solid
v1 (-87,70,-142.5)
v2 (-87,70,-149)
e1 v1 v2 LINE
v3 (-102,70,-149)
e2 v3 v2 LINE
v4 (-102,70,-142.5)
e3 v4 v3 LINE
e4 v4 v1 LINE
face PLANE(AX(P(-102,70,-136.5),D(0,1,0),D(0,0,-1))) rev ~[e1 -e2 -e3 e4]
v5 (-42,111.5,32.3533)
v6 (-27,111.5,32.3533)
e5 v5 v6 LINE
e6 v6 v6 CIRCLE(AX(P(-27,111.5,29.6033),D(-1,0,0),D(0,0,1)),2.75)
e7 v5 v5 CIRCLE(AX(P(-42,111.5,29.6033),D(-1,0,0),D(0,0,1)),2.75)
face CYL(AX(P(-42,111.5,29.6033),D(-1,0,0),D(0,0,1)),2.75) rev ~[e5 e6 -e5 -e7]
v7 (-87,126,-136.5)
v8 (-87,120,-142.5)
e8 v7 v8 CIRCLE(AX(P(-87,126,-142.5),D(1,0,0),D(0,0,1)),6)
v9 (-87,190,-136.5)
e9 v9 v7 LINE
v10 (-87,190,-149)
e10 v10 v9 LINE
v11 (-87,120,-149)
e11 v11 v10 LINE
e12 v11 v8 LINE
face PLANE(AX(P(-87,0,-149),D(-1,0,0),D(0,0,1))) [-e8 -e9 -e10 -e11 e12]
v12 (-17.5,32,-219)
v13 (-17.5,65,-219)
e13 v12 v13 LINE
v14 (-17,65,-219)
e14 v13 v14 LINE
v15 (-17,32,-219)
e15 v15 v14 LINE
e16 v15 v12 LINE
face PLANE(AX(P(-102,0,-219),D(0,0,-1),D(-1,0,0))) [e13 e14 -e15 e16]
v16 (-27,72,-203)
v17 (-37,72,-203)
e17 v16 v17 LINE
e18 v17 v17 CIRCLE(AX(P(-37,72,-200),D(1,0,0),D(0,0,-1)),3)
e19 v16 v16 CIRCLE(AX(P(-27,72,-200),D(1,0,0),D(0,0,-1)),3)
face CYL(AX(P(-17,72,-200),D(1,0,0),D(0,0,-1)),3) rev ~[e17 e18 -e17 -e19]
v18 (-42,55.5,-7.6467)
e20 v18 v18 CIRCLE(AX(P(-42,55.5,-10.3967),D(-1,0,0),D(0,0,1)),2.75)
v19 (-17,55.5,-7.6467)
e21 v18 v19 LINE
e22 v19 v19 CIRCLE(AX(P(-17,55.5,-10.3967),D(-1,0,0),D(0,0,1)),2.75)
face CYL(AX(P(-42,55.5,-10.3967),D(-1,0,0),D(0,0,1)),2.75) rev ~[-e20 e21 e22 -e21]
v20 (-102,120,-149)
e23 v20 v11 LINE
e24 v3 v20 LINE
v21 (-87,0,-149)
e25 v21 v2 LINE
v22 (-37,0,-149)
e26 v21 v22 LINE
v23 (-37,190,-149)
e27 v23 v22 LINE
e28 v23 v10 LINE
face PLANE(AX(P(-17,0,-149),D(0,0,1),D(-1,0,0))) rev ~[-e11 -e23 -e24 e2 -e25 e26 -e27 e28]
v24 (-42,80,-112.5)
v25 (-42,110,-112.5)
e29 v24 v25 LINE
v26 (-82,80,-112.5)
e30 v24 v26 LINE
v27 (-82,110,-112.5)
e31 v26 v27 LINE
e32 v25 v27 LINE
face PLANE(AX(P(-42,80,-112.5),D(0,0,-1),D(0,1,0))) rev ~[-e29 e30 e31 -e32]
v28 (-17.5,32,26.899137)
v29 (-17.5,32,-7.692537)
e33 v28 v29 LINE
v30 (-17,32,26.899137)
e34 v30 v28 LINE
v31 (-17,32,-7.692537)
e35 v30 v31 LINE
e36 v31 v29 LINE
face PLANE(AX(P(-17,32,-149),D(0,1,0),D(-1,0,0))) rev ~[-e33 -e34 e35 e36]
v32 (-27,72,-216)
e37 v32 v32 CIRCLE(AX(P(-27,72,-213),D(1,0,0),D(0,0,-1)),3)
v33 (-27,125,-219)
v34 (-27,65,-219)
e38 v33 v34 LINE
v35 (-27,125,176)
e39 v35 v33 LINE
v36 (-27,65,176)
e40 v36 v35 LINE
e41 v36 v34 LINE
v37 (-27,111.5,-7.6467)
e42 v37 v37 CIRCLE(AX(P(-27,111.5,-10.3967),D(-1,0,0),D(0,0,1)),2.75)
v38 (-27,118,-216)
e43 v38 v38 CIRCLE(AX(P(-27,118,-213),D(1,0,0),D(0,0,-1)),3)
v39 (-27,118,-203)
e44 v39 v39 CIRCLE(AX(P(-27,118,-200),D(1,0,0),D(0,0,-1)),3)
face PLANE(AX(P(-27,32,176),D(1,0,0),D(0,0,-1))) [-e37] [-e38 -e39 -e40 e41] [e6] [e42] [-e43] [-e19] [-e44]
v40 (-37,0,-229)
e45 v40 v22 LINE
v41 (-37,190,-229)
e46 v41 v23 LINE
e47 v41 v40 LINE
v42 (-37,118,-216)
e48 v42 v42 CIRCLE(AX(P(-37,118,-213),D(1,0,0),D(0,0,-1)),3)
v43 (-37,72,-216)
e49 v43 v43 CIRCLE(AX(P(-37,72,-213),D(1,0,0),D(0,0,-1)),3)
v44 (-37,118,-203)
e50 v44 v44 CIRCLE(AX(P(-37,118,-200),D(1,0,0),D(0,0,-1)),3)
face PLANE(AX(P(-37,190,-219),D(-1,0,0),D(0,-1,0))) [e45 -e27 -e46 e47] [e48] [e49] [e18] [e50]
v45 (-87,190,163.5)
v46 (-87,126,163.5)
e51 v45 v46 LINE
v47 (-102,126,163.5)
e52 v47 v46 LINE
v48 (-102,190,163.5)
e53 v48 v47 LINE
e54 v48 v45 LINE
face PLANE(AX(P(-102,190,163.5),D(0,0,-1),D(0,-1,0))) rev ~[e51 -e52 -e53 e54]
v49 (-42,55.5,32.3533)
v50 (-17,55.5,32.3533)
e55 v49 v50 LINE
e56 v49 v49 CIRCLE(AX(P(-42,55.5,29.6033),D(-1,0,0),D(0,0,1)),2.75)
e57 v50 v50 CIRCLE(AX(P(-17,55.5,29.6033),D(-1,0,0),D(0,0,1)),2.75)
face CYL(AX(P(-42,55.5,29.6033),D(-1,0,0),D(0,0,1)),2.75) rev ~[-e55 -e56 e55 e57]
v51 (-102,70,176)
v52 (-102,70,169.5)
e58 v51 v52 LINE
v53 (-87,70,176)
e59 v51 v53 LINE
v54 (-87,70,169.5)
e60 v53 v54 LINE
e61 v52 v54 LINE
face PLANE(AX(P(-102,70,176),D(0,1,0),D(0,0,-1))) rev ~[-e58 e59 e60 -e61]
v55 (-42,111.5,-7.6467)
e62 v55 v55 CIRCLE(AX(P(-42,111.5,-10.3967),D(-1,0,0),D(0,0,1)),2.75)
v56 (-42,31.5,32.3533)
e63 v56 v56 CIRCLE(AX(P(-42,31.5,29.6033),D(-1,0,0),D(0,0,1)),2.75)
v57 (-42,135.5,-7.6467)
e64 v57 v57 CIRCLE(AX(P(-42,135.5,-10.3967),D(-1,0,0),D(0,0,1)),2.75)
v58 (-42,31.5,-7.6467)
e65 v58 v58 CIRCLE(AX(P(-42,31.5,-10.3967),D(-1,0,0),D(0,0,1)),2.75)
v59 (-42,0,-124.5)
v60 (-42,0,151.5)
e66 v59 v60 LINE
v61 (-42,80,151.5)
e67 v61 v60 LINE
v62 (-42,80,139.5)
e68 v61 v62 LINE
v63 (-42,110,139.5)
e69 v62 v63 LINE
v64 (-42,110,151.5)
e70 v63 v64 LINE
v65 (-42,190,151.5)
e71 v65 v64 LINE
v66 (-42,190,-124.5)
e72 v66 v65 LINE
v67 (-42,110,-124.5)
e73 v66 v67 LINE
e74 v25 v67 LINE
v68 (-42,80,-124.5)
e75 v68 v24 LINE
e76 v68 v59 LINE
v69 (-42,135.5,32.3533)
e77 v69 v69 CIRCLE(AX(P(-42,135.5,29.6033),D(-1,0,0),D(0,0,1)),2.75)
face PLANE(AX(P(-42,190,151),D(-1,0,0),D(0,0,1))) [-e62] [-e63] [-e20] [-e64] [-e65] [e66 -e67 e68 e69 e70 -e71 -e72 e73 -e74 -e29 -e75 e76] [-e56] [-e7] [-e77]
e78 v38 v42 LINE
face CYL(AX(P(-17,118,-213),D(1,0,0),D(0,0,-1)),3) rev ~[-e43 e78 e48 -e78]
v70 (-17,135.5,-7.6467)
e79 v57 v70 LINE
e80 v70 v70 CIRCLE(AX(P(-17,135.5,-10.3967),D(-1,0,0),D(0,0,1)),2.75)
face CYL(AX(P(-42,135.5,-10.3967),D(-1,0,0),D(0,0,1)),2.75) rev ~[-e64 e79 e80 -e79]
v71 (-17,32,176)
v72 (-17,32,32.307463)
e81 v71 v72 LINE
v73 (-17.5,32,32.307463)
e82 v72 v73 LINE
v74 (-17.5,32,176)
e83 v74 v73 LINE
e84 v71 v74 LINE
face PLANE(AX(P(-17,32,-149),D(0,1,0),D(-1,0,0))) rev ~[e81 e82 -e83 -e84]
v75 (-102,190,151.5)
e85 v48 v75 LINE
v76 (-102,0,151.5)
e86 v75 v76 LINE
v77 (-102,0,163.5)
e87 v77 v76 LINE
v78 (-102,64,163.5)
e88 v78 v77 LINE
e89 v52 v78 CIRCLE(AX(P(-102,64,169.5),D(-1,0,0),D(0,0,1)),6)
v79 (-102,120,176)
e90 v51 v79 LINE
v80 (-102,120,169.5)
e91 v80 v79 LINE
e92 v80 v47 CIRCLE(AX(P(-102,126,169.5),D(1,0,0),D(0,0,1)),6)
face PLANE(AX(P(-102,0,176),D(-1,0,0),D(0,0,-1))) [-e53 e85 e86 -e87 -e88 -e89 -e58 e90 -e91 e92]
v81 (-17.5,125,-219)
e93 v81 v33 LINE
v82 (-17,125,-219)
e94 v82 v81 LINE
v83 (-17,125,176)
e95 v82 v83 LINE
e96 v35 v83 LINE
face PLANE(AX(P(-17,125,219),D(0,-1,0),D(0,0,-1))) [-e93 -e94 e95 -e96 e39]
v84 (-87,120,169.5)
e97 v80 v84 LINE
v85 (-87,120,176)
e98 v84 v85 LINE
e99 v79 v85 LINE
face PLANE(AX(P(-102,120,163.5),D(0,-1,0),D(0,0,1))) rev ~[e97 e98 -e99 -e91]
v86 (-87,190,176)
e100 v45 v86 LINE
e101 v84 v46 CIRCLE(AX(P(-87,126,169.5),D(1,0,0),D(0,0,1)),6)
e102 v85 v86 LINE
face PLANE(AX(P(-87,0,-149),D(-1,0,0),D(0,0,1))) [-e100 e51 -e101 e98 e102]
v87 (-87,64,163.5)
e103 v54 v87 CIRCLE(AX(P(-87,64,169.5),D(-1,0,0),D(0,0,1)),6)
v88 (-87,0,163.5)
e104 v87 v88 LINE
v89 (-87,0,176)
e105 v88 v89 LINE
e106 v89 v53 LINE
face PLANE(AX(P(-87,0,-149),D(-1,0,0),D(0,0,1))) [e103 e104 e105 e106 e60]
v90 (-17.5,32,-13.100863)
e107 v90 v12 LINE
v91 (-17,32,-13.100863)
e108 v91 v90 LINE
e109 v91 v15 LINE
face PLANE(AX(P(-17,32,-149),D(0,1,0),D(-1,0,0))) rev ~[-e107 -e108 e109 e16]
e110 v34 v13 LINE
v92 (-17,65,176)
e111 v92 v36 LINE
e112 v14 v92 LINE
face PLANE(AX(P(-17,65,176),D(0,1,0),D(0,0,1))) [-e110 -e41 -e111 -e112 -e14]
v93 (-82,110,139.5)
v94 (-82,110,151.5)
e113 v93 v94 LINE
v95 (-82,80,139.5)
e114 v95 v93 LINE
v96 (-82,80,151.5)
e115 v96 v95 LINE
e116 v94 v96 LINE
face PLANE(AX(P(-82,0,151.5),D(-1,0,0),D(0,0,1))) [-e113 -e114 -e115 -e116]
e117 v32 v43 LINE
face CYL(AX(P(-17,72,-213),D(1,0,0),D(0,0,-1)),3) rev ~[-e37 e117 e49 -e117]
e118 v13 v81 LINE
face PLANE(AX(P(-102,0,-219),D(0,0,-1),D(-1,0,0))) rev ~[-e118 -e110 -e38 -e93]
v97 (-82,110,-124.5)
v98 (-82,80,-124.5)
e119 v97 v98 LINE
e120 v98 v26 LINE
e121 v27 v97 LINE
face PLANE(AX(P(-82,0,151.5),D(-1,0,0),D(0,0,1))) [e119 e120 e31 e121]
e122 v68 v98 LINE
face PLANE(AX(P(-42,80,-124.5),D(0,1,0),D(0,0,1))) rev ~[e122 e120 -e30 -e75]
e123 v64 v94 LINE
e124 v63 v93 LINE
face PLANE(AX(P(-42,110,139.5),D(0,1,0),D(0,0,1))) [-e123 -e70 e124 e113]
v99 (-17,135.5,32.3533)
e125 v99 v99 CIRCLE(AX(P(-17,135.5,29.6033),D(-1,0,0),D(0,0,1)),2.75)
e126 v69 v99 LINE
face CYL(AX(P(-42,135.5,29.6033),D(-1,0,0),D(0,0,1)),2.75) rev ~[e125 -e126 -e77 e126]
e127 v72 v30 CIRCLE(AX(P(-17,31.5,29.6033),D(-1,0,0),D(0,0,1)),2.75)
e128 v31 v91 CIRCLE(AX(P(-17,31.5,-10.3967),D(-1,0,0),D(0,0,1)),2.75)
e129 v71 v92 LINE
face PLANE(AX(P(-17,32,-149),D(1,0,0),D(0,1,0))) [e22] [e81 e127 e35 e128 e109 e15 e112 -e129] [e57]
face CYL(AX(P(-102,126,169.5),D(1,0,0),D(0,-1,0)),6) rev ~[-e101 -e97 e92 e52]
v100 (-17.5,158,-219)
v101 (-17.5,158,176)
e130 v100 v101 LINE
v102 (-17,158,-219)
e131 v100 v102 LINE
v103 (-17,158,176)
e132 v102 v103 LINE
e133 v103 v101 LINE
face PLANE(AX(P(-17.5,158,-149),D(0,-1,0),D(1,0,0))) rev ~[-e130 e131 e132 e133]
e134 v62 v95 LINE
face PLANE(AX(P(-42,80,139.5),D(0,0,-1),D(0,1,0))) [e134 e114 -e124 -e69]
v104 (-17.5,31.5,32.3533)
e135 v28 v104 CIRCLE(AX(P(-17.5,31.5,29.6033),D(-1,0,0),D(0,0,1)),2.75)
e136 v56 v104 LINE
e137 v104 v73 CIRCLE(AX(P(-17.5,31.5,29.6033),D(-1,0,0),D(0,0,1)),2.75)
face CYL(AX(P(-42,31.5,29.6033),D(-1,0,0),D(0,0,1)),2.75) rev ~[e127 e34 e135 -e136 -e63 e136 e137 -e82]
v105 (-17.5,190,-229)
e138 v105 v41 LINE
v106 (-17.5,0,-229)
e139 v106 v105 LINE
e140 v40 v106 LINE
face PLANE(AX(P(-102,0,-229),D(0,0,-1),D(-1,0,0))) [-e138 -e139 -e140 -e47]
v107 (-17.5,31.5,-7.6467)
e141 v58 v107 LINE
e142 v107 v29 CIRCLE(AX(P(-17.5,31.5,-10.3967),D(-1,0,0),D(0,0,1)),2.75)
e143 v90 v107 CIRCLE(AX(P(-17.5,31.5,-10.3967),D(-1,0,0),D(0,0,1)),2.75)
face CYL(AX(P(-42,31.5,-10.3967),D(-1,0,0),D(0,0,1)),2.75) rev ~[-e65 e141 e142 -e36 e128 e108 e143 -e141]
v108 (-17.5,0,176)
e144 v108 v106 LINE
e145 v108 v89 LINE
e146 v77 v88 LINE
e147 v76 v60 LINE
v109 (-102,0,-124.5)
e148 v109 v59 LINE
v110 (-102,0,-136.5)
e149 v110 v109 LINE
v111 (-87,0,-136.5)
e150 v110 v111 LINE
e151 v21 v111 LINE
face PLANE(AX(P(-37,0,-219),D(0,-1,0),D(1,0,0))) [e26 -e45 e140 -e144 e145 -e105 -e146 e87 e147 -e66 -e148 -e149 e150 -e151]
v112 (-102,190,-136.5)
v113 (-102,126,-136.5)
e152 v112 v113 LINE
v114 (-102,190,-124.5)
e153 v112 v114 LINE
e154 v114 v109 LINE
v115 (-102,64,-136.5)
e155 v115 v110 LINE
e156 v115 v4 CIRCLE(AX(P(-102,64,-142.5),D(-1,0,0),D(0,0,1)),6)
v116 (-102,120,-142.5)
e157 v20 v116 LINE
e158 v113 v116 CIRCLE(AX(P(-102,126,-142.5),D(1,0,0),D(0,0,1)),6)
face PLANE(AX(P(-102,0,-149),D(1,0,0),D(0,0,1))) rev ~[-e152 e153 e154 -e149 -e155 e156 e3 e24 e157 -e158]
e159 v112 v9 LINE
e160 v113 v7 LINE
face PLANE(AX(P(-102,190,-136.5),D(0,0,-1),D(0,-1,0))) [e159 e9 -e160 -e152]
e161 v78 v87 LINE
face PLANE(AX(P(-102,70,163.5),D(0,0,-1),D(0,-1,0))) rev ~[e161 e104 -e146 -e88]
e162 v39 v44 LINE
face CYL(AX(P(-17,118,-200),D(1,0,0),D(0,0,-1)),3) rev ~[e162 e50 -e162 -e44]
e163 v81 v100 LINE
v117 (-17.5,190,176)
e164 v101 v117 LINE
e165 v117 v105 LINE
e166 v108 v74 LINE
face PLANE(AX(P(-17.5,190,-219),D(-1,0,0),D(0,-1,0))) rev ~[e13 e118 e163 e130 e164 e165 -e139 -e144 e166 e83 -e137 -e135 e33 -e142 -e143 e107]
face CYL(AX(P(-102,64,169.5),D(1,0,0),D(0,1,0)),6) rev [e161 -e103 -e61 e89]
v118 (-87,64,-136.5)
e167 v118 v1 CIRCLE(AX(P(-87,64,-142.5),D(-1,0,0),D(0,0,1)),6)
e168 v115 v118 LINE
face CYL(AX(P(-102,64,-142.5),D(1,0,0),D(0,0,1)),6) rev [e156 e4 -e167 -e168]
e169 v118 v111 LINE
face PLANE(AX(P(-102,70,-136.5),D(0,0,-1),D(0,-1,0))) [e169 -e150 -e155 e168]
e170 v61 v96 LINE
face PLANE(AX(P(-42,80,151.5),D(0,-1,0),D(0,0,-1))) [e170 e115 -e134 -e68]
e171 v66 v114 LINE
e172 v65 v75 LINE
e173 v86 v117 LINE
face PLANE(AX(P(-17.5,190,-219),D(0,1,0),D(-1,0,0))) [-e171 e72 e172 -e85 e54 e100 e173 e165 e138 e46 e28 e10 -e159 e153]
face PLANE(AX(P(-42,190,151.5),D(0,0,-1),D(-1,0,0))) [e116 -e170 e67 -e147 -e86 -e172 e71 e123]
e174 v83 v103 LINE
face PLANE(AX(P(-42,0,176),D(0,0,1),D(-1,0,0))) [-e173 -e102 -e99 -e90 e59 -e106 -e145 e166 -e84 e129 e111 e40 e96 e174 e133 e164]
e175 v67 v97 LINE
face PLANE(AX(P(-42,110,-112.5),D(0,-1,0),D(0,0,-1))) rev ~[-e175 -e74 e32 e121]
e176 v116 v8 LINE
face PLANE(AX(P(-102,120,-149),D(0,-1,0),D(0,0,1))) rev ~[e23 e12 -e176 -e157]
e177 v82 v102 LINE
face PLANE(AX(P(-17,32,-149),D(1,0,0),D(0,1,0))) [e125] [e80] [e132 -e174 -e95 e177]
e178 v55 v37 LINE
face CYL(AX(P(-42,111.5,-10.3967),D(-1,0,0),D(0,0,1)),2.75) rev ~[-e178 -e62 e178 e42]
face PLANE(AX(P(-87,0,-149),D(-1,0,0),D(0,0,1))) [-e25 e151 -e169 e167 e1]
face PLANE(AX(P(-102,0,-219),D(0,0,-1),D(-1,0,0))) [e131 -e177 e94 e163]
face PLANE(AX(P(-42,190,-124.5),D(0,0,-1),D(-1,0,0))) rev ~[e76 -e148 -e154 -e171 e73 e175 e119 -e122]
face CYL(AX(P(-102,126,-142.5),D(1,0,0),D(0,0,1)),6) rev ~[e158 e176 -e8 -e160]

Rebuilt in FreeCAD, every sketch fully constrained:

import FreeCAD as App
import Part
import Sketcher

V = App.Vector


def edges_at(feature, points):
    """Names of the edges that pass closest to the given points."""
    edges = feature.Shape.Edges
    near = lambda p: min(range(len(edges)), key=lambda i: edges[i].distToShape(Part.Vertex(*p))[0])
    return sorted({f"Edge{near(p) + 1}" for p in points})

doc = App.newDocument("Part")
body = doc.addObject("PartDesign::Body", "Body")

# Sketch on XZ plane
sketch1 = doc.addObject("Sketcher::SketchObject", "Sketch")
body.addObject(sketch1)
sketch1.AttachmentSupport = (doc.XZ_Plane, [""])
sketch1.MapMode = "FlatFace"
sketch1.addGeometry(Part.LineSegment(V(-42, 151, 0), V(-102, 151, 0)), False)
sketch1.addGeometry(Part.LineSegment(V(-102, 151, 0), V(-102, 176, 0)), False)
sketch1.addGeometry(Part.LineSegment(V(-102, 176, 0), V(-17, 176, 0)), False)
sketch1.addGeometry(Part.LineSegment(V(-17, 176, 0), V(-17, -149, 0)), False)
sketch1.addGeometry(Part.LineSegment(V(-17, -149, 0), V(-102, -149, 0)), False)
sketch1.addGeometry(Part.LineSegment(V(-102, -149, 0), V(-102, -124, 0)), False)
sketch1.addGeometry(Part.LineSegment(V(-102, -124, 0), V(-42, -124, 0)), False)
sketch1.addGeometry(Part.LineSegment(V(-42, -124, 0), V(-42, 151, 0)), False)
sketch1.addConstraint(Sketcher.Constraint("Coincident", 0, 2, 1, 1))
sketch1.addConstraint(Sketcher.Constraint("Coincident", 1, 2, 2, 1))
sketch1.addConstraint(Sketcher.Constraint("Coincident", 2, 2, 3, 1))
sketch1.addConstraint(Sketcher.Constraint("Coincident", 3, 2, 4, 1))
sketch1.addConstraint(Sketcher.Constraint("Coincident", 4, 2, 5, 1))
sketch1.addConstraint(Sketcher.Constraint("Coincident", 5, 2, 6, 1))
sketch1.addConstraint(Sketcher.Constraint("Coincident", 6, 2, 7, 1))
sketch1.addConstraint(Sketcher.Constraint("Coincident", 7, 2, 0, 1))
sketch1.addConstraint(Sketcher.Constraint("Horizontal", 0))
sketch1.addConstraint(Sketcher.Constraint("Vertical", 1))
sketch1.addConstraint(Sketcher.Constraint("Horizontal", 2))
sketch1.addConstraint(Sketcher.Constraint("Vertical", 3))
sketch1.addConstraint(Sketcher.Constraint("Horizontal", 4))
sketch1.addConstraint(Sketcher.Constraint("Vertical", 5))
sketch1.addConstraint(Sketcher.Constraint("Horizontal", 6))
sketch1.addConstraint(Sketcher.Constraint("Vertical", 7))
sketch1.addConstraint(Sketcher.Constraint("Vertical", 1, 2, 4, 2))
sketch1.addConstraint(Sketcher.Constraint("Equal", 1, 5))
sketch1.addConstraint(Sketcher.Constraint("DistanceX", 0, 2, 0, 1, 60.0))
sketch1.addConstraint(Sketcher.Constraint("DistanceY", 1, 1, 1, 2, 25.0))
sketch1.addConstraint(Sketcher.Constraint("DistanceY", 3, 2, 0, 2, 300.0))
sketch1.addConstraint(Sketcher.Constraint("DistanceX", 6, 2, 3, 2, 25.0))
sketch1.addConstraint(Sketcher.Constraint("DistanceX", 0, 2, -1, 1, 102.0))
sketch1.addConstraint(Sketcher.Constraint("DistanceY", -1, 1, 0, 2, 151.0))
pad1 = doc.addObject("PartDesign::Pad", "Pad")
body.addObject(pad1)
pad1.Profile = sketch1
pad1.Length = 190
pad1.Reversed = True

# Sketch on YZ plane
sketch2 = doc.addObject("Sketcher::SketchObject", "Sketch001")
body.addObject(sketch2)
sketch2.AttachmentSupport = (doc.YZ_Plane, [""])
sketch2.MapMode = "FlatFace"
sketch2.AttachmentOffset = App.Placement(V(0, 0, -17), App.Rotation())
sketch2.addGeometry(Part.LineSegment(V(32, 176, 0), V(0, 176, 0)), False)
sketch2.addGeometry(Part.LineSegment(V(0, 176, 0), V(0, -149, 0)), False)
sketch2.addGeometry(Part.LineSegment(V(0, -149, 0), V(32, -149, 0)), False)
sketch2.addGeometry(Part.LineSegment(V(32, -149, 0), V(32, 176, 0)), False)
sketch2.addGeometry(Part.LineSegment(V(190, 176, 0), V(158, 176, 0)), False)
sketch2.addGeometry(Part.LineSegment(V(158, 176, 0), V(158, -149, 0)), False)
sketch2.addGeometry(Part.LineSegment(V(158, -149, 0), V(190, -149, 0)), False)
sketch2.addGeometry(Part.LineSegment(V(190, -149, 0), V(190, 176, 0)), False)
sketch2.addConstraint(Sketcher.Constraint("Coincident", 0, 2, 1, 1))
sketch2.addConstraint(Sketcher.Constraint("Coincident", 1, 2, 2, 1))
sketch2.addConstraint(Sketcher.Constraint("Coincident", 2, 2, 3, 1))
sketch2.addConstraint(Sketcher.Constraint("Coincident", 3, 2, 0, 1))
sketch2.addConstraint(Sketcher.Constraint("Coincident", 4, 2, 5, 1))
sketch2.addConstraint(Sketcher.Constraint("Coincident", 5, 2, 6, 1))
sketch2.addConstraint(Sketcher.Constraint("Coincident", 6, 2, 7, 1))
sketch2.addConstraint(Sketcher.Constraint("Coincident", 7, 2, 4, 1))
sketch2.addConstraint(Sketcher.Constraint("Horizontal", 0))
sketch2.addConstraint(Sketcher.Constraint("Vertical", 1))
sketch2.addConstraint(Sketcher.Constraint("Horizontal", 2))
sketch2.addConstraint(Sketcher.Constraint("Vertical", 3))
sketch2.addConstraint(Sketcher.Constraint("Horizontal", 4))
sketch2.addConstraint(Sketcher.Constraint("Vertical", 5))
sketch2.addConstraint(Sketcher.Constraint("Horizontal", 6))
sketch2.addConstraint(Sketcher.Constraint("Vertical", 7))
sketch2.addConstraint(Sketcher.Constraint("PointOnObject", 0, 2, -2))
sketch2.addConstraint(Sketcher.Constraint("Horizontal", 3, 2, 4, 2))
sketch2.addConstraint(Sketcher.Constraint("Horizontal", 2, 2, 5, 2))
sketch2.addConstraint(Sketcher.Constraint("Equal", 2, 4))
sketch2.addConstraint(Sketcher.Constraint("DistanceX", 0, 2, 0, 1, 32.0))
sketch2.addConstraint(Sketcher.Constraint("DistanceY", 1, 2, 1, 1, 325.0))
sketch2.addConstraint(Sketcher.Constraint("DistanceY", -1, 1, 0, 2, 176.0))
sketch2.addConstraint(Sketcher.Constraint("DistanceX", -1, 1, 4, 2, 158.0))
pocket1 = doc.addObject("PartDesign::Pocket", "Pocket")
body.addObject(pocket1)
pocket1.Profile = sketch2
pocket1.Length = 0.5

# Sketch on XY plane
sketch3 = doc.addObject("Sketcher::SketchObject", "Sketch002")
body.addObject(sketch3)
sketch3.AttachmentSupport = (doc.XY_Plane, [""])
sketch3.MapMode = "FlatFace"
sketch3.AttachmentOffset = App.Placement(V(0, 0, -149), App.Rotation())
sketch3.addGeometry(Part.LineSegment(V(-17, 158, 0), V(-17, 32, 0)), False)
sketch3.addGeometry(Part.LineSegment(V(-17, 32, 0), V(-17.5, 32, 0)), False)
sketch3.addGeometry(Part.LineSegment(V(-17.5, 32, 0), V(-17.5, 0, 0)), False)
sketch3.addGeometry(Part.LineSegment(V(-17.5, 0, 0), V(-37, 0, 0)), False)
sketch3.addGeometry(Part.LineSegment(V(-37, 0, 0), V(-37, 190, 0)), False)
sketch3.addGeometry(Part.LineSegment(V(-37, 190, 0), V(-17.5, 190, 0)), False)
sketch3.addGeometry(Part.LineSegment(V(-17.5, 190, 0), V(-17.5, 158, 0)), False)
sketch3.addGeometry(Part.LineSegment(V(-17.5, 158, 0), V(-17, 158, 0)), False)
sketch3.addConstraint(Sketcher.Constraint("Coincident", 0, 2, 1, 1))
sketch3.addConstraint(Sketcher.Constraint("Coincident", 1, 2, 2, 1))
sketch3.addConstraint(Sketcher.Constraint("Coincident", 2, 2, 3, 1))
sketch3.addConstraint(Sketcher.Constraint("Coincident", 3, 2, 4, 1))
sketch3.addConstraint(Sketcher.Constraint("Coincident", 4, 2, 5, 1))
sketch3.addConstraint(Sketcher.Constraint("Coincident", 5, 2, 6, 1))
sketch3.addConstraint(Sketcher.Constraint("Coincident", 6, 2, 7, 1))
sketch3.addConstraint(Sketcher.Constraint("Coincident", 7, 2, 0, 1))
sketch3.addConstraint(Sketcher.Constraint("Vertical", 0))
sketch3.addConstraint(Sketcher.Constraint("Horizontal", 1))
sketch3.addConstraint(Sketcher.Constraint("Vertical", 2))
sketch3.addConstraint(Sketcher.Constraint("Horizontal", 3))
sketch3.addConstraint(Sketcher.Constraint("Vertical", 4))
sketch3.addConstraint(Sketcher.Constraint("Horizontal", 5))
sketch3.addConstraint(Sketcher.Constraint("Vertical", 6))
sketch3.addConstraint(Sketcher.Constraint("Horizontal", 7))
sketch3.addConstraint(Sketcher.Constraint("PointOnObject", 2, 2, -1))
sketch3.addConstraint(Sketcher.Constraint("Vertical", 2, 2, 5, 2))
sketch3.addConstraint(Sketcher.Constraint("Equal", 2, 6))
sketch3.addConstraint(Sketcher.Constraint("DistanceX", 3, 2, 0, 2, 20.0))
sketch3.addConstraint(Sketcher.Constraint("DistanceY", 0, 2, 0, 1, 126.0))
sketch3.addConstraint(Sketcher.Constraint("DistanceY", 2, 2, 2, 1, 32.0))
sketch3.addConstraint(Sketcher.Constraint("DistanceX", 1, 2, 1, 1, 0.5))
sketch3.addConstraint(Sketcher.Constraint("DistanceX", 0, 2, -1, 1, 17.0))
pad2 = doc.addObject("PartDesign::Pad", "Pad001")
body.addObject(pad2)
pad2.Profile = sketch3
pad2.Length = 70
pad2.Reversed = True

# Sketch on YZ plane
sketch4 = doc.addObject("Sketcher::SketchObject", "Sketch003")
body.addObject(sketch4)
sketch4.AttachmentSupport = (doc.YZ_Plane, [""])
sketch4.MapMode = "FlatFace"
sketch4.AttachmentOffset = App.Placement(V(0, 0, -17), App.Rotation())
sketch4.addGeometry(Part.LineSegment(V(65, 219, 0), V(65, -298, 0)), False)
sketch4.addGeometry(Part.LineSegment(V(65, -298, 0), V(125, -298, 0)), False)
sketch4.addGeometry(Part.LineSegment(V(125, -298, 0), V(125, 219, 0)), False)
sketch4.addGeometry(Part.LineSegment(V(125, 219, 0), V(65, 219, 0)), False)
sketch4.addConstraint(Sketcher.Constraint("Coincident", 0, 2, 1, 1))
sketch4.addConstraint(Sketcher.Constraint("Coincident", 1, 2, 2, 1))
sketch4.addConstraint(Sketcher.Constraint("Coincident", 2, 2, 3, 1))
sketch4.addConstraint(Sketcher.Constraint("Coincident", 3, 2, 0, 1))
sketch4.addConstraint(Sketcher.Constraint("Vertical", 0))
sketch4.addConstraint(Sketcher.Constraint("Horizontal", 1))
sketch4.addConstraint(Sketcher.Constraint("Vertical", 2))
sketch4.addConstraint(Sketcher.Constraint("Horizontal", 3))
sketch4.addConstraint(Sketcher.Constraint("DistanceX", 1, 1, 1, 2, 60.0))
sketch4.addConstraint(Sketcher.Constraint("DistanceY", 0, 2, 0, 1, 517.0))
sketch4.addConstraint(Sketcher.Constraint("DistanceX", -1, 1, 0, 2, 65.0))
sketch4.addConstraint(Sketcher.Constraint("DistanceY", 0, 2, -1, 1, 298.0))
pocket2 = doc.addObject("PartDesign::Pocket", "Pocket001")
body.addObject(pocket2)
pocket2.Profile = sketch4
pocket2.Length = 10

# Sketch on YZ plane
sketch5 = doc.addObject("Sketcher::SketchObject", "Sketch004")
body.addObject(sketch5)
sketch5.AttachmentSupport = (doc.YZ_Plane, [""])
sketch5.MapMode = "FlatFace"
sketch5.AttachmentOffset = App.Placement(V(0, 0, -102), App.Rotation())
sketch5.addGeometry(Part.LineSegment(V(70, -149, 0), V(0, -149, 0)), False)
sketch5.addGeometry(Part.LineSegment(V(0, -149, 0), V(0, -136, 0)), False)
sketch5.addGeometry(Part.LineSegment(V(0, -136, 0), V(70, -136, 0)), False)
sketch5.addGeometry(Part.LineSegment(V(70, -136, 0), V(70, -149, 0)), False)
sketch5.addGeometry(Part.LineSegment(V(190, -149, 0), V(120, -149, 0)), False)
sketch5.addGeometry(Part.LineSegment(V(120, -149, 0), V(120, -136, 0)), False)
sketch5.addGeometry(Part.LineSegment(V(120, -136, 0), V(190, -136, 0)), False)
sketch5.addGeometry(Part.LineSegment(V(190, -136, 0), V(190, -149, 0)), False)
sketch5.addGeometry(Part.LineSegment(V(70, 176, 0), V(70, 164, 0)), False)
sketch5.addGeometry(Part.LineSegment(V(70, 164, 0), V(0, 164, 0)), False)
sketch5.addGeometry(Part.LineSegment(V(0, 164, 0), V(0, 176, 0)), False)
sketch5.addGeometry(Part.LineSegment(V(0, 176, 0), V(70, 176, 0)), False)
sketch5.addGeometry(Part.LineSegment(V(190, 164, 0), V(120, 164, 0)), False)
sketch5.addGeometry(Part.LineSegment(V(120, 164, 0), V(120, 176, 0)), False)
sketch5.addGeometry(Part.LineSegment(V(120, 176, 0), V(190, 176, 0)), False)
sketch5.addGeometry(Part.LineSegment(V(190, 176, 0), V(190, 164, 0)), False)
sketch5.addConstraint(Sketcher.Constraint("Coincident", 0, 2, 1, 1))
sketch5.addConstraint(Sketcher.Constraint("Coincident", 1, 2, 2, 1))
sketch5.addConstraint(Sketcher.Constraint("Coincident", 2, 2, 3, 1))
sketch5.addConstraint(Sketcher.Constraint("Coincident", 3, 2, 0, 1))
sketch5.addConstraint(Sketcher.Constraint("Coincident", 4, 2, 5, 1))
sketch5.addConstraint(Sketcher.Constraint("Coincident", 5, 2, 6, 1))
sketch5.addConstraint(Sketcher.Constraint("Coincident", 6, 2, 7, 1))
sketch5.addConstraint(Sketcher.Constraint("Coincident", 7, 2, 4, 1))
sketch5.addConstraint(Sketcher.Constraint("Coincident", 8, 2, 9, 1))
sketch5.addConstraint(Sketcher.Constraint("Coincident", 9, 2, 10, 1))
sketch5.addConstraint(Sketcher.Constraint("Coincident", 10, 2, 11, 1))
sketch5.addConstraint(Sketcher.Constraint("Coincident", 11, 2, 8, 1))
sketch5.addConstraint(Sketcher.Constraint("Coincident", 12, 2, 13, 1))
sketch5.addConstraint(Sketcher.Constraint("Coincident", 13, 2, 14, 1))
sketch5.addConstraint(Sketcher.Constraint("Coincident", 14, 2, 15, 1))
sketch5.addConstraint(Sketcher.Constraint("Coincident", 15, 2, 12, 1))
sketch5.addConstraint(Sketcher.Constraint("Horizontal", 0))
sketch5.addConstraint(Sketcher.Constraint("Vertical", 1))
sketch5.addConstraint(Sketcher.Constraint("Horizontal", 2))
sketch5.addConstraint(Sketcher.Constraint("Vertical", 3))
sketch5.addConstraint(Sketcher.Constraint("Horizontal", 4))
sketch5.addConstraint(Sketcher.Constraint("Vertical", 5))
sketch5.addConstraint(Sketcher.Constraint("Horizontal", 6))
sketch5.addConstraint(Sketcher.Constraint("Vertical", 7))
sketch5.addConstraint(Sketcher.Constraint("Vertical", 8))
sketch5.addConstraint(Sketcher.Constraint("Horizontal", 9))
sketch5.addConstraint(Sketcher.Constraint("Vertical", 10))
sketch5.addConstraint(Sketcher.Constraint("Horizontal", 11))
sketch5.addConstraint(Sketcher.Constraint("Horizontal", 12))
sketch5.addConstraint(Sketcher.Constraint("Vertical", 13))
sketch5.addConstraint(Sketcher.Constraint("Horizontal", 14))
sketch5.addConstraint(Sketcher.Constraint("Vertical", 15))
sketch5.addConstraint(Sketcher.Constraint("PointOnObject", 0, 2, -2))
sketch5.addConstraint(Sketcher.Constraint("PointOnObject", 9, 2, -2))
sketch5.addConstraint(Sketcher.Constraint("Horizontal", 3, 2, 4, 2))
sketch5.addConstraint(Sketcher.Constraint("Horizontal", 2, 2, 5, 2))
sketch5.addConstraint(Sketcher.Constraint("Horizontal", 9, 2, 12, 2))
sketch5.addConstraint(Sketcher.Constraint("Horizontal", 11, 2, 13, 2))
sketch5.addConstraint(Sketcher.Constraint("Vertical", 3, 2, 8, 2))
sketch5.addConstraint(Sketcher.Constraint("Vertical", 5, 2, 12, 2))
sketch5.addConstraint(Sketcher.Constraint("Vertical", 7, 2, 14, 2))
sketch5.addConstraint(Sketcher.Constraint("Equal", 2, 4))
sketch5.addConstraint(Sketcher.Constraint("Equal", 7, 8))
sketch5.addConstraint(Sketcher.Constraint("DistanceX", 0, 2, 0, 1, 70.0))
sketch5.addConstraint(Sketcher.Constraint("DistanceY", 1, 1, 1, 2, 12.5))
sketch5.addConstraint(Sketcher.Constraint("DistanceY", 0, 2, -1, 1, 149.0))
sketch5.addConstraint(Sketcher.Constraint("DistanceX", -1, 1, 4, 2, 120.0))
sketch5.addConstraint(Sketcher.Constraint("DistanceY", -1, 1, 10, 2, 176.0))
pocket3 = doc.addObject("PartDesign::Pocket", "Pocket002")
body.addObject(pocket3)
pocket3.Profile = sketch5
pocket3.Length = 15
pocket3.Reversed = True
doc.recompute()

fillet = doc.addObject("PartDesign::Fillet", "Fillet")
body.addObject(fillet)
fillet.Base = (pocket3, edges_at(pocket3, [
    (-94.5, 70, -136.5),
    (-94.5, 120, -136.5),
    (-94.5, 120, 163.5),
    (-94.5, 70, 163.5),
]))
fillet.Radius = 6

# Sketch on YZ plane
sketch6 = doc.addObject("Sketcher::SketchObject", "Sketch005")
body.addObject(sketch6)
sketch6.AttachmentSupport = (doc.YZ_Plane, [""])
sketch6.MapMode = "FlatFace"
sketch6.AttachmentOffset = App.Placement(V(0, 0, -17), App.Rotation())
sketch6.addGeometry(Part.Circle(V(118, -200, 0), V(0, 0, 1), 3), False)
sketch6.addGeometry(Part.Circle(V(118, -213, 0), V(0, 0, 1), 3), False)
sketch6.addGeometry(Part.Circle(V(72, -200, 0), V(0, 0, 1), 3), False)
sketch6.addGeometry(Part.Circle(V(72, -213, 0), V(0, 0, 1), 3), False)
sketch6.addConstraint(Sketcher.Constraint("Equal", 0, 1))
sketch6.addConstraint(Sketcher.Constraint("Equal", 1, 2))
sketch6.addConstraint(Sketcher.Constraint("Equal", 2, 3))
sketch6.addConstraint(Sketcher.Constraint("Horizontal", 0, 3, 2, 3))
sketch6.addConstraint(Sketcher.Constraint("Horizontal", 1, 3, 3, 3))
sketch6.addConstraint(Sketcher.Constraint("Vertical", 0, 3, 1, 3))
sketch6.addConstraint(Sketcher.Constraint("Vertical", 2, 3, 3, 3))
sketch6.addConstraint(Sketcher.Constraint("Diameter", 0, 6.0))
sketch6.addConstraint(Sketcher.Constraint("DistanceY", 1, 3, 0, 3, 13.0))
sketch6.addConstraint(Sketcher.Constraint("DistanceX", 2, 3, 0, 3, 46.0))
sketch6.addConstraint(Sketcher.Constraint("DistanceX", -1, 1, 0, 3, 118.0))
sketch6.addConstraint(Sketcher.Constraint("DistanceY", 0, 3, -1, 1, 200.0))
pocket4 = doc.addObject("PartDesign::Pocket", "Pocket003")
body.addObject(pocket4)
pocket4.Profile = sketch6
pocket4.Length = 100

# Sketch on XY plane
sketch7 = doc.addObject("Sketcher::SketchObject", "Sketch006")
body.addObject(sketch7)
sketch7.AttachmentSupport = (doc.XY_Plane, [""])
sketch7.MapMode = "FlatFace"
sketch7.AttachmentOffset = App.Placement(V(0, 0, -219), App.Rotation())
sketch7.addGeometry(Part.LineSegment(V(-37, 190, 0), V(-18, 190, 0)), False)
sketch7.addGeometry(Part.LineSegment(V(-18, 190, 0), V(-18, 0, 0)), False)
sketch7.addGeometry(Part.LineSegment(V(-18, 0, 0), V(-37, 0, 0)), False)
sketch7.addGeometry(Part.LineSegment(V(-37, 0, 0), V(-37, 190, 0)), False)
sketch7.addConstraint(Sketcher.Constraint("Coincident", 0, 2, 1, 1))
sketch7.addConstraint(Sketcher.Constraint("Coincident", 1, 2, 2, 1))
sketch7.addConstraint(Sketcher.Constraint("Coincident", 2, 2, 3, 1))
sketch7.addConstraint(Sketcher.Constraint("Coincident", 3, 2, 0, 1))
sketch7.addConstraint(Sketcher.Constraint("Horizontal", 0))
sketch7.addConstraint(Sketcher.Constraint("Vertical", 1))
sketch7.addConstraint(Sketcher.Constraint("Horizontal", 2))
sketch7.addConstraint(Sketcher.Constraint("Vertical", 3))
sketch7.addConstraint(Sketcher.Constraint("PointOnObject", 1, 2, -1))
sketch7.addConstraint(Sketcher.Constraint("DistanceY", 1, 2, 1, 1, 190.0))
sketch7.addConstraint(Sketcher.Constraint("DistanceX", 0, 1, 0, 2, 19.5))
sketch7.addConstraint(Sketcher.Constraint("DistanceX", 2, 2, -1, 1, 37.0))
pad3 = doc.addObject("PartDesign::Pad", "Pad002")
body.addObject(pad3)
pad3.Profile = sketch7
pad3.Length = 10
pad3.Reversed = True

# Sketch on YZ plane
sketch8 = doc.addObject("Sketcher::SketchObject", "Sketch007")
body.addObject(sketch8)
sketch8.AttachmentSupport = (doc.YZ_Plane, [""])
sketch8.MapMode = "FlatFace"
sketch8.AttachmentOffset = App.Placement(V(0, 0, -42), App.Rotation())
sketch8.addGeometry(Part.Circle(V(31.5, 29.6, 0), V(0, 0, 1), 2.8), False)
sketch8.addGeometry(Part.Circle(V(31.5, -10.4, 0), V(0, 0, 1), 2.8), False)
sketch8.addGeometry(Part.Circle(V(55.5, -10.4, 0), V(0, 0, 1), 2.8), False)
sketch8.addGeometry(Part.Circle(V(55.5, 29.6, 0), V(0, 0, 1), 2.8), False)
sketch8.addGeometry(Part.Circle(V(111.5, 29.6, 0), V(0, 0, 1), 2.8), False)
sketch8.addGeometry(Part.Circle(V(111.5, -10.4, 0), V(0, 0, 1), 2.8), False)
sketch8.addGeometry(Part.Circle(V(135.5, -10.4, 0), V(0, 0, 1), 2.8), False)
sketch8.addGeometry(Part.Circle(V(135.5, 29.6, 0), V(0, 0, 1), 2.8), False)
sketch8.addConstraint(Sketcher.Constraint("Equal", 0, 1))
sketch8.addConstraint(Sketcher.Constraint("Equal", 1, 2))
sketch8.addConstraint(Sketcher.Constraint("Equal", 2, 3))
sketch8.addConstraint(Sketcher.Constraint("Equal", 3, 4))
sketch8.addConstraint(Sketcher.Constraint("Equal", 4, 5))
sketch8.addConstraint(Sketcher.Constraint("Equal", 5, 6))
sketch8.addConstraint(Sketcher.Constraint("Equal", 6, 7))
sketch8.addConstraint(Sketcher.Constraint("Horizontal", 1, 3, 2, 3))
sketch8.addConstraint(Sketcher.Constraint("Horizontal", 0, 3, 3, 3))
sketch8.addConstraint(Sketcher.Constraint("Horizontal", 3, 3, 4, 3))
sketch8.addConstraint(Sketcher.Constraint("Horizontal", 2, 3, 5, 3))
sketch8.addConstraint(Sketcher.Constraint("Horizontal", 5, 3, 6, 3))
sketch8.addConstraint(Sketcher.Constraint("Horizontal", 4, 3, 7, 3))
sketch8.addConstraint(Sketcher.Constraint("Vertical", 0, 3, 1, 3))
sketch8.addConstraint(Sketcher.Constraint("Vertical", 2, 3, 3, 3))
sketch8.addConstraint(Sketcher.Constraint("Vertical", 4, 3, 5, 3))
sketch8.addConstraint(Sketcher.Constraint("Vertical", 6, 3, 7, 3))
sketch8.addConstraint(Sketcher.Constraint("Diameter", 0, 5.5))
sketch8.addConstraint(Sketcher.Constraint("DistanceY", 1, 3, 0, 3, 40.0))
sketch8.addConstraint(Sketcher.Constraint("DistanceX", 1, 3, 2, 3, 24.0))
sketch8.addConstraint(Sketcher.Constraint("DistanceX", 3, 3, 4, 3, 56.0))
sketch8.addConstraint(Sketcher.Constraint("DistanceX", 5, 3, 6, 3, 24.0))
sketch8.addConstraint(Sketcher.Constraint("DistanceX", -1, 1, 0, 3, 31.5))
sketch8.addConstraint(Sketcher.Constraint("DistanceY", -1, 1, 0, 3, 29.6033))
pocket5 = doc.addObject("PartDesign::Pocket", "Pocket004")
body.addObject(pocket5)
pocket5.Profile = sketch8
pocket5.Length = 33
pocket5.Reversed = True

# Sketch on XZ plane
sketch9 = doc.addObject("Sketcher::SketchObject", "Sketch008")
body.addObject(sketch9)
sketch9.AttachmentSupport = (doc.XZ_Plane, [""])
sketch9.MapMode = "FlatFace"
sketch9.AttachmentOffset = App.Placement(V(0, 0, -190), App.Rotation())
sketch9.addGeometry(Part.LineSegment(V(-42, 151.5, 0), V(-42, 151, 0)), False)
sketch9.addGeometry(Part.LineSegment(V(-42, 151, 0), V(-102, 151, 0)), False)
sketch9.addGeometry(Part.LineSegment(V(-102, 151, 0), V(-102, 151.5, 0)), False)
sketch9.addGeometry(Part.LineSegment(V(-102, 151.5, 0), V(-42, 151.5, 0)), False)
sketch9.addGeometry(Part.LineSegment(V(-102, -124.5, 0), V(-102, -124, 0)), False)
sketch9.addGeometry(Part.LineSegment(V(-102, -124, 0), V(-42, -124, 0)), False)
sketch9.addGeometry(Part.LineSegment(V(-42, -124, 0), V(-42, -124.5, 0)), False)
sketch9.addGeometry(Part.LineSegment(V(-42, -124.5, 0), V(-102, -124.5, 0)), False)
sketch9.addConstraint(Sketcher.Constraint("Coincident", 0, 2, 1, 1))
sketch9.addConstraint(Sketcher.Constraint("Coincident", 1, 2, 2, 1))
sketch9.addConstraint(Sketcher.Constraint("Coincident", 2, 2, 3, 1))
sketch9.addConstraint(Sketcher.Constraint("Coincident", 3, 2, 0, 1))
sketch9.addConstraint(Sketcher.Constraint("Coincident", 4, 2, 5, 1))
sketch9.addConstraint(Sketcher.Constraint("Coincident", 5, 2, 6, 1))
sketch9.addConstraint(Sketcher.Constraint("Coincident", 6, 2, 7, 1))
sketch9.addConstraint(Sketcher.Constraint("Coincident", 7, 2, 4, 1))
sketch9.addConstraint(Sketcher.Constraint("Vertical", 0))
sketch9.addConstraint(Sketcher.Constraint("Horizontal", 1))
sketch9.addConstraint(Sketcher.Constraint("Vertical", 2))
sketch9.addConstraint(Sketcher.Constraint("Horizontal", 3))
sketch9.addConstraint(Sketcher.Constraint("Vertical", 4))
sketch9.addConstraint(Sketcher.Constraint("Horizontal", 5))
sketch9.addConstraint(Sketcher.Constraint("Vertical", 6))
sketch9.addConstraint(Sketcher.Constraint("Horizontal", 7))
sketch9.addConstraint(Sketcher.Constraint("Vertical", 2, 2, 4, 2))
sketch9.addConstraint(Sketcher.Constraint("Vertical", 3, 2, 5, 2))
sketch9.addConstraint(Sketcher.Constraint("Equal", 2, 4))
sketch9.addConstraint(Sketcher.Constraint("DistanceY", 0, 2, 0, 1, 0.5))
sketch9.addConstraint(Sketcher.Constraint("DistanceX", 1, 2, 1, 1, 60.0))
sketch9.addConstraint(Sketcher.Constraint("DistanceX", 0, 2, -1, 1, 42.0))
sketch9.addConstraint(Sketcher.Constraint("DistanceY", -1, 1, 0, 2, 151.0))
sketch9.addConstraint(Sketcher.Constraint("DistanceY", 4, 2, -1, 1, 124.0))
pocket6 = doc.addObject("PartDesign::Pocket", "Pocket005")
body.addObject(pocket6)
pocket6.Profile = sketch9
pocket6.Length = 200
pocket6.Reversed = True

# Sketch on YZ plane
sketch10 = doc.addObject("Sketcher::SketchObject", "Sketch009")
body.addObject(sketch10)
sketch10.AttachmentSupport = (doc.YZ_Plane, [""])
sketch10.MapMode = "FlatFace"
sketch10.AttachmentOffset = App.Placement(V(0, 0, -42), App.Rotation())
sketch10.addGeometry(Part.LineSegment(V(110, -112, 0), V(110, -124, 0)), False)
sketch10.addGeometry(Part.LineSegment(V(110, -124, 0), V(80, -124, 0)), False)
sketch10.addGeometry(Part.LineSegment(V(80, -124, 0), V(80, -112, 0)), False)
sketch10.addGeometry(Part.LineSegment(V(80, -112, 0), V(110, -112, 0)), False)
sketch10.addGeometry(Part.LineSegment(V(80, 152, 0), V(110, 152, 0)), False)
sketch10.addGeometry(Part.LineSegment(V(110, 152, 0), V(110, 140, 0)), False)
sketch10.addGeometry(Part.LineSegment(V(110, 140, 0), V(80, 140, 0)), False)
sketch10.addGeometry(Part.LineSegment(V(80, 140, 0), V(80, 152, 0)), False)
sketch10.addConstraint(Sketcher.Constraint("Coincident", 0, 2, 1, 1))
sketch10.addConstraint(Sketcher.Constraint("Coincident", 1, 2, 2, 1))
sketch10.addConstraint(Sketcher.Constraint("Coincident", 2, 2, 3, 1))
sketch10.addConstraint(Sketcher.Constraint("Coincident", 3, 2, 0, 1))
sketch10.addConstraint(Sketcher.Constraint("Coincident", 4, 2, 5, 1))
sketch10.addConstraint(Sketcher.Constraint("Coincident", 5, 2, 6, 1))
sketch10.addConstraint(Sketcher.Constraint("Coincident", 6, 2, 7, 1))
sketch10.addConstraint(Sketcher.Constraint("Coincident", 7, 2, 4, 1))
sketch10.addConstraint(Sketcher.Constraint("Vertical", 0))
sketch10.addConstraint(Sketcher.Constraint("Horizontal", 1))
sketch10.addConstraint(Sketcher.Constraint("Vertical", 2))
sketch10.addConstraint(Sketcher.Constraint("Horizontal", 3))
sketch10.addConstraint(Sketcher.Constraint("Horizontal", 4))
sketch10.addConstraint(Sketcher.Constraint("Vertical", 5))
sketch10.addConstraint(Sketcher.Constraint("Horizontal", 6))
sketch10.addConstraint(Sketcher.Constraint("Vertical", 7))
sketch10.addConstraint(Sketcher.Constraint("Vertical", 3, 2, 4, 2))
sketch10.addConstraint(Sketcher.Constraint("Vertical", 2, 2, 6, 2))
sketch10.addConstraint(Sketcher.Constraint("Equal", 2, 5))
sketch10.addConstraint(Sketcher.Constraint("DistanceY", 0, 2, 0, 1, 12.0))
sketch10.addConstraint(Sketcher.Constraint("DistanceX", -1, 1, 1, 2, 80.0))
sketch10.addConstraint(Sketcher.Constraint("DistanceX", 1, 2, 1, 1, 30.0))
sketch10.addConstraint(Sketcher.Constraint("DistanceY", 3, 2, 4, 2, 264.0))
sketch10.addConstraint(Sketcher.Constraint("DistanceY", 0, 2, -1, 1, 124.5))
pad4 = doc.addObject("PartDesign::Pad", "Pad003")
body.addObject(pad4)
pad4.Profile = sketch10
pad4.Length = 40
pad4.Reversed = True

doc.recompute()
